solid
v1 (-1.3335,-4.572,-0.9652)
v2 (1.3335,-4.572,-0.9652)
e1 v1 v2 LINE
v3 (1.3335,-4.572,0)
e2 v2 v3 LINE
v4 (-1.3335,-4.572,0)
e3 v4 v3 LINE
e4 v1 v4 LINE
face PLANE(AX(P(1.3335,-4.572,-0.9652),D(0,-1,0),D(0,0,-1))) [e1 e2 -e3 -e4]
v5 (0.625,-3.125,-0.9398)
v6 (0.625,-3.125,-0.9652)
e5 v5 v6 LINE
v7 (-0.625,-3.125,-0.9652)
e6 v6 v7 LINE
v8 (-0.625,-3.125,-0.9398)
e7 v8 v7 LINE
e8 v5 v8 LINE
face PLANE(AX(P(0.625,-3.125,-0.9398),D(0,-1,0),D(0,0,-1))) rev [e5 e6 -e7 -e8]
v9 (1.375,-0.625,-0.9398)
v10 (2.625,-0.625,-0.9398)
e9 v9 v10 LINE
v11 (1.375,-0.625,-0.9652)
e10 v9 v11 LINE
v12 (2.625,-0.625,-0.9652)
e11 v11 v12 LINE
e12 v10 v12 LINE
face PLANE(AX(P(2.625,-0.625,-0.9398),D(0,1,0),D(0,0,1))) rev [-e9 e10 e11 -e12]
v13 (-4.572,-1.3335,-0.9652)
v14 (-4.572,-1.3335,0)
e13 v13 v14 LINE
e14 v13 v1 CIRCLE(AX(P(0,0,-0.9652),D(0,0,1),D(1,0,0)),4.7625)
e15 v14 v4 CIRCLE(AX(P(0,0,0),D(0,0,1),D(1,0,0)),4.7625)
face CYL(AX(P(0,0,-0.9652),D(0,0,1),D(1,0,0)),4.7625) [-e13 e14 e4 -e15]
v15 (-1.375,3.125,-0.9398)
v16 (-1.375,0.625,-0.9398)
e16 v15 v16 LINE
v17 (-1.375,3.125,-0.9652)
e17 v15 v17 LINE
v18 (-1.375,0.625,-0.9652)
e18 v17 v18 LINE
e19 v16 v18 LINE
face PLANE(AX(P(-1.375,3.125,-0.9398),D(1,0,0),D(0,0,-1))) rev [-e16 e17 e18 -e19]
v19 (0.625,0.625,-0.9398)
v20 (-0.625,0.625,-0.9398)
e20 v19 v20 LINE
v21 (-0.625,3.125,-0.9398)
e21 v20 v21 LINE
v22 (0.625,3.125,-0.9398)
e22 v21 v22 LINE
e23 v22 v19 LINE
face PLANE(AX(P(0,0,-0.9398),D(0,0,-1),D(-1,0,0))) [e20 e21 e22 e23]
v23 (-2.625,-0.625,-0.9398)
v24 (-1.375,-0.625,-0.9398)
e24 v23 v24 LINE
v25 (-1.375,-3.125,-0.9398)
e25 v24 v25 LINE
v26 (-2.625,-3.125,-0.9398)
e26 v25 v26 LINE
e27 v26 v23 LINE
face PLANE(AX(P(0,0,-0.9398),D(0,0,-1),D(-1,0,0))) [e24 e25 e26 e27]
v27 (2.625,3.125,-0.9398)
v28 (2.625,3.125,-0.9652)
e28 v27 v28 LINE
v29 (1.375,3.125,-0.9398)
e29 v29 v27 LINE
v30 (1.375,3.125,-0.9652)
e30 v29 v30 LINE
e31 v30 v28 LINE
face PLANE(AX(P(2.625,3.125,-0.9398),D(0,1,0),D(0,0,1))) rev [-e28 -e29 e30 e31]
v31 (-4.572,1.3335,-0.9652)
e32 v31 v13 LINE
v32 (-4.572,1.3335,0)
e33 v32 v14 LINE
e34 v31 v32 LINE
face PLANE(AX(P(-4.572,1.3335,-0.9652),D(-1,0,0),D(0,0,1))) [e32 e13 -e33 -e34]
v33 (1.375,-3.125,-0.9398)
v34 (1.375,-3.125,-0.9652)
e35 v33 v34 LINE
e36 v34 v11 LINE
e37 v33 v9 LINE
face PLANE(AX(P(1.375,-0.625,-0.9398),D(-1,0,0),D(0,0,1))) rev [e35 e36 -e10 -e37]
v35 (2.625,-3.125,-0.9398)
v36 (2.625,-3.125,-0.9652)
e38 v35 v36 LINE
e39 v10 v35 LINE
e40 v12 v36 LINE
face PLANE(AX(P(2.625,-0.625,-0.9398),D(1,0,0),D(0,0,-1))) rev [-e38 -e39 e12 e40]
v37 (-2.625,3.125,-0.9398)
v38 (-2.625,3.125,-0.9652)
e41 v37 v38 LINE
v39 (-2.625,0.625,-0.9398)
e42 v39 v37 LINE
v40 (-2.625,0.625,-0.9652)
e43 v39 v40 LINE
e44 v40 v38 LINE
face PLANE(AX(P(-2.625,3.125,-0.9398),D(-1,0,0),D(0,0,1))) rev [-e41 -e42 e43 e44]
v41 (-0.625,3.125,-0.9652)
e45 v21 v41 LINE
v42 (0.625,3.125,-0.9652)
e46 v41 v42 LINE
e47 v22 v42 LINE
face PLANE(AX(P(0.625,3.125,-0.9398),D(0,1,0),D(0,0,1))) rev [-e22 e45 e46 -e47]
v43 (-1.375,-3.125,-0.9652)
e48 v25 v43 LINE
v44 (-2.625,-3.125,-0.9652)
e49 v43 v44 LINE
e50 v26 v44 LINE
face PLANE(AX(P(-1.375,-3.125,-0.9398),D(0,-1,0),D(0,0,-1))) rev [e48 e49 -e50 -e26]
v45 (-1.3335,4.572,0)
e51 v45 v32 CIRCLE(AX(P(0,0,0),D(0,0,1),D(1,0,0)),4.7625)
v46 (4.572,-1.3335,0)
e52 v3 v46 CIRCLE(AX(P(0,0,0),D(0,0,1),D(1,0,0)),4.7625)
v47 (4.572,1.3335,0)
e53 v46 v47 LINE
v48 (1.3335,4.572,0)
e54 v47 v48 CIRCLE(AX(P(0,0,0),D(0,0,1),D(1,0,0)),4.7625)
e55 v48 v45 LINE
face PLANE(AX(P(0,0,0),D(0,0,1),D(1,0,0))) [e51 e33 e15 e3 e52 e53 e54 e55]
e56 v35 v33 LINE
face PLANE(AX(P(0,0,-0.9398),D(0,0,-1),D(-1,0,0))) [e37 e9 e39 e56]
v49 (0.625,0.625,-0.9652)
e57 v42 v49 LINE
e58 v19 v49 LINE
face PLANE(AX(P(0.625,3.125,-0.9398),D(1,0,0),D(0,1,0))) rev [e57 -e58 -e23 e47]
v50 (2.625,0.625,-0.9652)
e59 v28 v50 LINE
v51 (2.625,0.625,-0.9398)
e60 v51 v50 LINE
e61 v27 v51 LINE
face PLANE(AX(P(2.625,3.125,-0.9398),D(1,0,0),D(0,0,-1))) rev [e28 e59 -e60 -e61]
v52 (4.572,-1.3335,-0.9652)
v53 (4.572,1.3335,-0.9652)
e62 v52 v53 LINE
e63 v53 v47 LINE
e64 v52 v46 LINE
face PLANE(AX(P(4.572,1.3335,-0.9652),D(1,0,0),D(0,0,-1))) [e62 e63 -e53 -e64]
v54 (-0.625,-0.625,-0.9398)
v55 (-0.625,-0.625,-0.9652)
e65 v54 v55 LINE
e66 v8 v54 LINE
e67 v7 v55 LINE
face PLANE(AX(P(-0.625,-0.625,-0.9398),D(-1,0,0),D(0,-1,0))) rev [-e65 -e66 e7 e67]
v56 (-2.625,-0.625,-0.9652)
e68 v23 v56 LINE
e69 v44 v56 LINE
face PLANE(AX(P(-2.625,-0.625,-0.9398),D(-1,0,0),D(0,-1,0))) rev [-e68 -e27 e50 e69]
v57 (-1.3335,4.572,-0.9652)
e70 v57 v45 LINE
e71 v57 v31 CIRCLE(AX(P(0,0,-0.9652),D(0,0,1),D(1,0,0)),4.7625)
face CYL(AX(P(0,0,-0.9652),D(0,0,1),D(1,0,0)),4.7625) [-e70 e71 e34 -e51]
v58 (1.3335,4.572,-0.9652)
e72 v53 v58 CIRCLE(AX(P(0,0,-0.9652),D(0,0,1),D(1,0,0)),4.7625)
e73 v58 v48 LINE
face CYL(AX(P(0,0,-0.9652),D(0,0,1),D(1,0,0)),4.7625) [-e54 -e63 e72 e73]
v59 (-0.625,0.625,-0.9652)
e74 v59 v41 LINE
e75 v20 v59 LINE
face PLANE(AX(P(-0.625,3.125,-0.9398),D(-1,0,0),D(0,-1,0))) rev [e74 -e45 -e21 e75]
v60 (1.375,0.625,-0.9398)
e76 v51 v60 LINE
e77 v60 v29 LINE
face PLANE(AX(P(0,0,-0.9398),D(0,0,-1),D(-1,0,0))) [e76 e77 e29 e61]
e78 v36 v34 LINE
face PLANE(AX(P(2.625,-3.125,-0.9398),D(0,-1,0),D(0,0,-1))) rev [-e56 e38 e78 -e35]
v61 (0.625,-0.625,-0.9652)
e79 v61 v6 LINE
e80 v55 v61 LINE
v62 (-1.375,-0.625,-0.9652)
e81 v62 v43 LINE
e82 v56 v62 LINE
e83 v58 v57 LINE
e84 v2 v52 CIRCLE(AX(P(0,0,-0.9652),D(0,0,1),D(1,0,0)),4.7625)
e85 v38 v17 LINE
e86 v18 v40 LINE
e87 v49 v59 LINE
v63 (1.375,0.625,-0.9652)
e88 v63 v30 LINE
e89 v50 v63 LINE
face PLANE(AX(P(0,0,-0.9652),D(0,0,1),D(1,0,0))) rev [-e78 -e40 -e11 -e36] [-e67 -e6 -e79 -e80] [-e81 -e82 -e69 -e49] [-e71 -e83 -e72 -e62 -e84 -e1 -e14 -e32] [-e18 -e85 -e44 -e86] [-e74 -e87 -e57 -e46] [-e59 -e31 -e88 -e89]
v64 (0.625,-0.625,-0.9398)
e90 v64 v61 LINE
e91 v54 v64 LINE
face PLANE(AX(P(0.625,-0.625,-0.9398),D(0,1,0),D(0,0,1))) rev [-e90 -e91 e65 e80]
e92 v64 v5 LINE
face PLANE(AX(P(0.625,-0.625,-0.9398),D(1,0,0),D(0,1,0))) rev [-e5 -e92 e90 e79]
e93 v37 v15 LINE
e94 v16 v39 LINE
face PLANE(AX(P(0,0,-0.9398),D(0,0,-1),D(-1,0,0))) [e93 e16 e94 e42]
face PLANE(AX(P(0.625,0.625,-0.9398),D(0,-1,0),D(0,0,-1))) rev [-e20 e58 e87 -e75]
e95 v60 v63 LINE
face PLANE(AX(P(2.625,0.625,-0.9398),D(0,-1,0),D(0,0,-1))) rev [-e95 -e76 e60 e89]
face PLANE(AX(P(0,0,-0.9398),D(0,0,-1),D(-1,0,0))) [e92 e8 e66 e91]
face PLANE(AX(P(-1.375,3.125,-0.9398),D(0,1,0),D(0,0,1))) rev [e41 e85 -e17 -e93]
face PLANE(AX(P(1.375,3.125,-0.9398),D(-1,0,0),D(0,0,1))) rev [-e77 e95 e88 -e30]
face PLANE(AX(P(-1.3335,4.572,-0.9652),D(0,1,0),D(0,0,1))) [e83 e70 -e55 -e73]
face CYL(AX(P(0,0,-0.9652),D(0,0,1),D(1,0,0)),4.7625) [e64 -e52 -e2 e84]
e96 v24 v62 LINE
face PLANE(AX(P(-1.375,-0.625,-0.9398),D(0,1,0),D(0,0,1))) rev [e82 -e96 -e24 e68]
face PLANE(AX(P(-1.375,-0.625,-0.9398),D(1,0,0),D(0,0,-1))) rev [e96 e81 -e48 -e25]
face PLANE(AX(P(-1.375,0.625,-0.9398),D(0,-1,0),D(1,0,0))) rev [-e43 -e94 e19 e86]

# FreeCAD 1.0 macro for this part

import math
import FreeCAD as App
import Part
import Sketcher
from FreeCAD import Vector
Q = App.Units.Quantity

doc = App.newDocument("Part")
body = doc.addObject("PartDesign::Body", "Body")

sketch1 = body.newObject("Sketcher::SketchObject", "Sketch")
sketch1.AttachmentSupport = (doc.getObject("XY_Plane"), [""])
sketch1.MapMode = "FlatFace"
sketch1.addGeometry(Part.LineSegment(Vector(1.3, 4.6, 0), Vector(-1.3, 4.6, 0)), False)
sketch1.addGeometry(Part.ArcOfCircle(Part.Circle(Vector(0, 0, 0), Vector(0, 0, 1), 4.8), math.radians(106), math.radians(164)), False)
sketch1.addGeometry(Part.LineSegment(Vector(-4.6, 1.3, 0), Vector(-4.6, -1.3, 0)), False)
sketch1.addGeometry(Part.ArcOfCircle(Part.Circle(Vector(0, 0, 0), Vector(0, 0, 1), 4.8), math.radians(-164), math.radians(-106)), False)
sketch1.addGeometry(Part.LineSegment(Vector(-1.3, -4.6, 0), Vector(1.3, -4.6, 0)), False)
sketch1.addGeometry(Part.ArcOfCircle(Part.Circle(Vector(0, 0, 0), Vector(0, 0, 1), 4.8), math.radians(-74), math.radians(-16)), False)
sketch1.addGeometry(Part.LineSegment(Vector(4.6, -1.3, 0), Vector(4.6, 1.3, 0)), False)
sketch1.addGeometry(Part.ArcOfCircle(Part.Circle(Vector(0, 0, 0), Vector(0, 0, 1), 4.8), math.radians(16), math.radians(74)), False)
sketch1.addConstraint(Sketcher.Constraint("Coincident", 0, 2, 1, 1))
sketch1.addConstraint(Sketcher.Constraint("Coincident", 1, 2, 2, 1))
sketch1.addConstraint(Sketcher.Constraint("Coincident", 2, 2, 3, 1))
sketch1.addConstraint(Sketcher.Constraint("Coincident", 3, 2, 4, 1))
sketch1.addConstraint(Sketcher.Constraint("Coincident", 4, 2, 5, 1))
sketch1.addConstraint(Sketcher.Constraint("Coincident", 5, 2, 6, 1))
sketch1.addConstraint(Sketcher.Constraint("Coincident", 6, 2, 7, 1))
sketch1.addConstraint(Sketcher.Constraint("Coincident", 7, 2, 0, 1))
sketch1.addConstraint(Sketcher.Constraint("Horizontal", 0))
sketch1.addConstraint(Sketcher.Constraint("Vertical", 2))
sketch1.addConstraint(Sketcher.Constraint("Horizontal", 4))
sketch1.addConstraint(Sketcher.Constraint("Vertical", 6))
sketch1.addConstraint(Sketcher.Constraint("Coincident", 1, 3, -1, 1))
sketch1.addConstraint(Sketcher.Constraint("Coincident", 3, 3, -1, 1))
sketch1.addConstraint(Sketcher.Constraint("Coincident", 5, 3, -1, 1))
sketch1.addConstraint(Sketcher.Constraint("Coincident", 7, 3, -1, 1))
sketch1.addConstraint(Sketcher.Constraint("Equal", 1, 3))
sketch1.addConstraint(Sketcher.Constraint("Equal", 3, 5))
sketch1.addConstraint(Sketcher.Constraint("Equal", 5, 7))
sketch1.addConstraint(Sketcher.Constraint("Horizontal", 2, 2, 5, 2))
sketch1.addConstraint(Sketcher.Constraint("Vertical", 0, 2, 3, 2))
sketch1.addConstraint(Sketcher.Constraint("Equal", 4, 2))
sketch1.addConstraint(Sketcher.Constraint("Radius", 1, Q("0.1875 in")))
sketch1.addConstraint(Sketcher.Constraint("DistanceX", 0, 2, 0, 1, Q("0.105 in")))
pad1 = body.newObject("PartDesign::Pad", "Pad")
pad1.Profile = sketch1
pad1.Length = Q("0.038 in")
pad1.Reversed = True

sketch2 = body.newObject("Sketcher::SketchObject", "Sketch001")
sketch2.AttachmentSupport = (doc.getObject("XY_Plane"), [""])
sketch2.MapMode = "FlatFace"
sketch2.AttachmentOffset = App.Placement(Vector(0, 0, -0.038 * 25.4), App.Rotation())
sketch2.addGeometry(Part.LineSegment(Vector(2.6, 3.1, 0), Vector(2.6, 0.6, 0)), False)
sketch2.addGeometry(Part.LineSegment(Vector(2.6, 0.6, 0), Vector(1.4, 0.6, 0)), False)
sketch2.addGeometry(Part.LineSegment(Vector(1.4, 0.6, 0), Vector(1.4, 3.1, 0)), False)
sketch2.addGeometry(Part.LineSegment(Vector(1.4, 3.1, 0), Vector(2.6, 3.1, 0)), False)
sketch2.addGeometry(Part.LineSegment(Vector(0.6, 3.1, 0), Vector(0.6, 0.6, 0)), False)
sketch2.addGeometry(Part.LineSegment(Vector(0.6, 0.6, 0), Vector(-0.6, 0.6, 0)), False)
sketch2.addGeometry(Part.LineSegment(Vector(-0.6, 0.6, 0), Vector(-0.6, 3.1, 0)), False)
sketch2.addGeometry(Part.LineSegment(Vector(-0.6, 3.1, 0), Vector(0.6, 3.1, 0)), False)
sketch2.addGeometry(Part.LineSegment(Vector(-1.4, 3.1, 0), Vector(-1.4, 0.6, 0)), False)
sketch2.addGeometry(Part.LineSegment(Vector(-1.4, 0.6, 0), Vector(-2.6, 0.6, 0)), False)
sketch2.addGeometry(Part.LineSegment(Vector(-2.6, 0.6, 0), Vector(-2.6, 3.1, 0)), False)
sketch2.addGeometry(Part.LineSegment(Vector(-2.6, 3.1, 0), Vector(-1.4, 3.1, 0)), False)
sketch2.addGeometry(Part.LineSegment(Vector(2.6, -0.6, 0), Vector(2.6, -3.1, 0)), False)
sketch2.addGeometry(Part.LineSegment(Vector(2.6, -3.1, 0), Vector(1.4, -3.1, 0)), False)
sketch2.addGeometry(Part.LineSegment(Vector(1.4, -3.1, 0), Vector(1.4, -0.6, 0)), False)
sketch2.addGeometry(Part.LineSegment(Vector(1.4, -0.6, 0), Vector(2.6, -0.6, 0)), False)
sketch2.addGeometry(Part.LineSegment(Vector(0.6, -0.6, 0), Vector(0.6, -3.1, 0)), False)
sketch2.addGeometry(Part.LineSegment(Vector(0.6, -3.1, 0), Vector(-0.6, -3.1, 0)), False)
sketch2.addGeometry(Part.LineSegment(Vector(-0.6, -3.1, 0), Vector(-0.6, -0.6, 0)), False)
sketch2.addGeometry(Part.LineSegment(Vector(-0.6, -0.6, 0), Vector(0.6, -0.6, 0)), False)
sketch2.addGeometry(Part.LineSegment(Vector(-1.4, -0.6, 0), Vector(-1.4, -3.1, 0)), False)
sketch2.addGeometry(Part.LineSegment(Vector(-1.4, -3.1, 0), Vector(-2.6, -3.1, 0)), False)
sketch2.addGeometry(Part.LineSegment(Vector(-2.6, -3.1, 0), Vector(-2.6, -0.6, 0)), False)
sketch2.addGeometry(Part.LineSegment(Vector(-2.6, -0.6, 0), Vector(-1.4, -0.6, 0)), False)
sketch2.addConstraint(Sketcher.Constraint("Coincident", 0, 2, 1, 1))
sketch2.addConstraint(Sketcher.Constraint("Coincident", 1, 2, 2, 1))
sketch2.addConstraint(Sketcher.Constraint("Coincident", 2, 2, 3, 1))
sketch2.addConstraint(Sketcher.Constraint("Coincident", 3, 2, 0, 1))
sketch2.addConstraint(Sketcher.Constraint("Coincident", 4, 2, 5, 1))
sketch2.addConstraint(Sketcher.Constraint("Coincident", 5, 2, 6, 1))
sketch2.addConstraint(Sketcher.Constraint("Coincident", 6, 2, 7, 1))
sketch2.addConstraint(Sketcher.Constraint("Coincident", 7, 2, 4, 1))
sketch2.addConstraint(Sketcher.Constraint("Coincident", 8, 2, 9, 1))
sketch2.addConstraint(Sketcher.Constraint("Coincident", 9, 2, 10, 1))
sketch2.addConstraint(Sketcher.Constraint("Coincident", 10, 2, 11, 1))
sketch2.addConstraint(Sketcher.Constraint("Coincident", 11, 2, 8, 1))
sketch2.addConstraint(Sketcher.Constraint("Coincident", 12, 2, 13, 1))
sketch2.addConstraint(Sketcher.Constraint("Coincident", 13, 2, 14, 1))
sketch2.addConstraint(Sketcher.Constraint("Coincident", 14, 2, 15, 1))
sketch2.addConstraint(Sketcher.Constraint("Coincident", 15, 2, 12, 1))
sketch2.addConstraint(Sketcher.Constraint("Coincident", 16, 2, 17, 1))
sketch2.addConstraint(Sketcher.Constraint("Coincident", 17, 2, 18, 1))
sketch2.addConstraint(Sketcher.Constraint("Coincident", 18, 2, 19, 1))
sketch2.addConstraint(Sketcher.Constraint("Coincident", 19, 2, 16, 1))
sketch2.addConstraint(Sketcher.Constraint("Coincident", 20, 2, 21, 1))
sketch2.addConstraint(Sketcher.Constraint("Coincident", 21, 2, 22, 1))
sketch2.addConstraint(Sketcher.Constraint("Coincident", 22, 2, 23, 1))
sketch2.addConstraint(Sketcher.Constraint("Coincident", 23, 2, 20, 1))
sketch2.addConstraint(Sketcher.Constraint("Vertical", 0))
sketch2.addConstraint(Sketcher.Constraint("Horizontal", 1))
sketch2.addConstraint(Sketcher.Constraint("Vertical", 2))
sketch2.addConstraint(Sketcher.Constraint("Horizontal", 3))
sketch2.addConstraint(Sketcher.Constraint("Vertical", 4))
sketch2.addConstraint(Sketcher.Constraint("Horizontal", 5))
sketch2.addConstraint(Sketcher.Constraint("Vertical", 6))
sketch2.addConstraint(Sketcher.Constraint("Horizontal", 7))
sketch2.addConstraint(Sketcher.Constraint("Vertical", 8))
sketch2.addConstraint(Sketcher.Constraint("Horizontal", 9))
sketch2.addConstraint(Sketcher.Constraint("Vertical", 10))
sketch2.addConstraint(Sketcher.Constraint("Horizontal", 11))
sketch2.addConstraint(Sketcher.Constraint("Vertical", 12))
sketch2.addConstraint(Sketcher.Constraint("Horizontal", 13))
sketch2.addConstraint(Sketcher.Constraint("Vertical", 14))
sketch2.addConstraint(Sketcher.Constraint("Horizontal", 15))
sketch2.addConstraint(Sketcher.Constraint("Vertical", 16))
sketch2.addConstraint(Sketcher.Constraint("Horizontal", 17))
sketch2.addConstraint(Sketcher.Constraint("Vertical", 18))
sketch2.addConstraint(Sketcher.Constraint("Horizontal", 19))
sketch2.addConstraint(Sketcher.Constraint("Vertical", 20))
sketch2.addConstraint(Sketcher.Constraint("Horizontal", 21))
sketch2.addConstraint(Sketcher.Constraint("Vertical", 22))
sketch2.addConstraint(Sketcher.Constraint("Horizontal", 23))
sketch2.addConstraint(Sketcher.Constraint("Symmetric", 10, 2, 12, 2, -1, 1))
sketch2.addConstraint(Sketcher.Constraint("Symmetric", 8, 2, 14, 2, -1, 1))
sketch2.addConstraint(Sketcher.Constraint("Symmetric", 6, 2, 16, 2, -1, 1))
sketch2.addConstraint(Sketcher.Constraint("Symmetric", 4, 2, 18, 2, -1, 1))
sketch2.addConstraint(Sketcher.Constraint("Symmetric", 2, 2, 20, 2, -1, 1))
sketch2.addConstraint(Sketcher.Constraint("Symmetric", 0, 2, 22, 2, -1, 1))
sketch2.addConstraint(Sketcher.Constraint("Symmetric", 1, 2, 8, 2, -2))
sketch2.addConstraint(Sketcher.Constraint("Symmetric", 3, 2, 10, 2, -2))
sketch2.addConstraint(Sketcher.Constraint("Horizontal", 1, 2, 4, 2))
sketch2.addConstraint(Sketcher.Constraint("Horizontal", 3, 2, 6, 2))
sketch2.addConstraint(Sketcher.Constraint("Vertical", 7, 2, 16, 2))
sketch2.addConstraint(Sketcher.Constraint("Equal", 3, 5))
sketch2.addConstraint(Sketcher.Constraint("DistanceX", 1, 2, 1, 1, 1.25))
sketch2.addConstraint(Sketcher.Constraint("DistanceY", 0, 2, 0, 1, 2.5))
sketch2.addConstraint(Sketcher.Constraint("DistanceX", -1, 1, 0, 2, 2.625))
sketch2.addConstraint(Sketcher.Constraint("DistanceY", -1, 1, 0, 2, 0.625))
pocket1 = body.newObject("PartDesign::Pocket", "Pocket")
pocket1.Profile = sketch2
pocket1.Length = Q("0.001 in")
pocket1.Reversed = True

doc.recompute()
